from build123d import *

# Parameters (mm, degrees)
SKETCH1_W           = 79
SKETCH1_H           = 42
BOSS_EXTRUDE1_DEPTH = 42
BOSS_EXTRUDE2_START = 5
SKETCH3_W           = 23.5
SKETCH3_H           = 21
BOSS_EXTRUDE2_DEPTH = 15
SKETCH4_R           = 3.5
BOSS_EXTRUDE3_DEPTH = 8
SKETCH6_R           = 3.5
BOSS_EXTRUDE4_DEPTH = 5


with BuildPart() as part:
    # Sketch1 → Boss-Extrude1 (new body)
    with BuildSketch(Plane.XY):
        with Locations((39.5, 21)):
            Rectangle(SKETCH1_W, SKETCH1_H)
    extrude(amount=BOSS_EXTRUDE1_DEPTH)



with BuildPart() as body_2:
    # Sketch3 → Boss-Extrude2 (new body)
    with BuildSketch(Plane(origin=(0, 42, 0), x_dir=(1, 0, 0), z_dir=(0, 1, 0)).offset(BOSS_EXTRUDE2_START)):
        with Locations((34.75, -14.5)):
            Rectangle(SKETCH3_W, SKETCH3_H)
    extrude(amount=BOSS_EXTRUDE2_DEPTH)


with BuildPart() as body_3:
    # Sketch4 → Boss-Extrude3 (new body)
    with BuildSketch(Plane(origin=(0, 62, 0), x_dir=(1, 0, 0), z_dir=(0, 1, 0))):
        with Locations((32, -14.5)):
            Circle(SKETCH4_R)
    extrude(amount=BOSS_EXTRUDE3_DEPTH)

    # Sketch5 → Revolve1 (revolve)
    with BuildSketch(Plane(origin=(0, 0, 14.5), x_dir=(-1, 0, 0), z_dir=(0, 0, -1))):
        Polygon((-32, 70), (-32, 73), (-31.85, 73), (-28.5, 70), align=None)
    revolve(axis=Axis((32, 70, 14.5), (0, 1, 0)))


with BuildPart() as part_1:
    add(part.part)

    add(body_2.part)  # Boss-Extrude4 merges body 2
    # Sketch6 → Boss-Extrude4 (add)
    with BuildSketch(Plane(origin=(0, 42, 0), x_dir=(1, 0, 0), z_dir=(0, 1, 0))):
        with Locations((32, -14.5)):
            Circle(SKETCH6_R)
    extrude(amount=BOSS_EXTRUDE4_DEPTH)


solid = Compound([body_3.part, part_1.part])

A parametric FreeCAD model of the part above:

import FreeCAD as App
import Part
import Sketcher

V = App.Vector
Q = App.Units.Quantity

doc = App.newDocument("Part")
body = doc.addObject("PartDesign::Body", "Body")

# Sketch on XY plane
sketch1 = body.newObject("Sketcher::SketchObject", "Sketch")
sketch1.AttachmentSupport = (doc.getObject("XY_Plane"), [""])
sketch1.MapMode = "FlatFace"
sketch1.addGeometry([
    Part.LineSegment(V(0, 42, 0), V(0, 0, 0)),
    Part.LineSegment(V(0, 0, 0), V(79, 0, 0)),
    Part.LineSegment(V(79, 0, 0), V(79, 42, 0)),
    Part.LineSegment(V(79, 42, 0), V(0, 42, 0)),
], False)
sketch1.addConstraint([
    Sketcher.Constraint("Coincident", 0, 2, 1, 1),
    Sketcher.Constraint("Coincident", 1, 2, 2, 1),
    Sketcher.Constraint("Coincident", 2, 2, 3, 1),
    Sketcher.Constraint("Coincident", 3, 2, 0, 1),
    Sketcher.Constraint("Vertical", 0),
    Sketcher.Constraint("Horizontal", 1),
    Sketcher.Constraint("Vertical", 2),
    Sketcher.Constraint("Horizontal", 3),
    Sketcher.Constraint("Coincident", 0, 2, -1, 1),
    Sketcher.Constraint("DistanceX", 1, 1, 1, 2, Q("79 mm")),
    Sketcher.Constraint("DistanceY", 0, 2, 0, 1, Q("42 mm")),
])
pad1 = body.newObject("PartDesign::Pad", "Pad")
pad1.Profile = sketch1
pad1.Length = 42
body2 = doc.addObject("PartDesign::Body", "Body001")

# Sketch on XZ plane
sketch2 = body2.newObject("Sketcher::SketchObject", "Sketch001")
sketch2.AttachmentSupport = (doc.getObject("XZ_Plane001"), [""])
sketch2.MapMode = "FlatFace"
sketch2.AttachmentOffset = App.Placement(V(0, 0, -47), App.Rotation())
sketch2.addGeometry([
    Part.LineSegment(V(23, 4, 0), V(23, 25, 0)),
    Part.LineSegment(V(23, 25, 0), V(46, 25, 0)),
    Part.LineSegment(V(46, 25, 0), V(46, 4, 0)),
    Part.LineSegment(V(46, 4, 0), V(23, 4, 0)),
], False)
sketch2.addConstraint([
    Sketcher.Constraint("Coincident", 0, 2, 1, 1),
    Sketcher.Constraint("Coincident", 1, 2, 2, 1),
    Sketcher.Constraint("Coincident", 2, 2, 3, 1),
    Sketcher.Constraint("Coincident", 3, 2, 0, 1),
    Sketcher.Constraint("Vertical", 0),
    Sketcher.Constraint("Horizontal", 1),
    Sketcher.Constraint("Vertical", 2),
    Sketcher.Constraint("Horizontal", 3),
    Sketcher.Constraint("DistanceY", 0, 1, 0, 2, Q("21 mm")),
    Sketcher.Constraint("DistanceX", 1, 1, 1, 2, Q("23.5 mm")),
    Sketcher.Constraint("DistanceX", -1, 1, 0, 2, Q("23 mm")),
    Sketcher.Constraint("DistanceY", -1, 1, 0, 2, Q("25 mm")),
])
pad2 = body2.newObject("PartDesign::Pad", "Pad001")
pad2.Profile = sketch2
pad2.Length = 15
pad2.Reversed = True
body3 = doc.addObject("PartDesign::Body", "Body002")

# Sketch on XZ plane
sketch3 = body3.newObject("Sketcher::SketchObject", "Sketch002")
sketch3.AttachmentSupport = (doc.getObject("XZ_Plane002"), [""])
sketch3.MapMode = "FlatFace"
sketch3.AttachmentOffset = App.Placement(V(0, 0, -62), App.Rotation())
sketch3.addGeometry(Part.Circle(V(32, 14.5, 0), V(0, 0, 1), 3.5), False)
sketch3.addConstraint([
    Sketcher.Constraint("Diameter", 0, Q("7 mm")),
    Sketcher.Constraint("DistanceX", -1, 1, 0, 3, Q("32 mm")),
    Sketcher.Constraint("DistanceY", -1, 1, 0, 3, Q("14.5 mm")),
])
pad3 = body3.newObject("PartDesign::Pad", "Pad002")
pad3.Profile = sketch3
pad3.Length = 8
pad3.Reversed = True

# Sketch on XY plane
sketch4 = body3.newObject("Sketcher::SketchObject", "Sketch003")
sketch4.AttachmentSupport = (doc.getObject("XY_Plane002"), [""])
sketch4.MapMode = "FlatFace"
sketch4.AttachmentOffset = App.Placement(V(0, 0, 14.5), App.Rotation())
sketch4.addGeometry([
    Part.LineSegment(V(32, 73, 0), V(32, 70, 0)),
    Part.LineSegment(V(32, 70, 0), V(28.5, 70, 0)),
    Part.LineSegment(V(28.5, 70, 0), V(31.85, 73, 0)),
    Part.LineSegment(V(31.85, 73, 0), V(32, 73, 0)),
], False)
sketch4.addGeometry(Part.LineSegment(V(32, 70, 0), V(32, 73, 0)), True)  # axis
sketch4.addConstraint([
    Sketcher.Constraint("Coincident", 0, 2, 1, 1),
    Sketcher.Constraint("Coincident", 1, 2, 2, 1),
    Sketcher.Constraint("Coincident", 2, 2, 3, 1),
    Sketcher.Constraint("Coincident", 3, 2, 0, 1),
    Sketcher.Constraint("Vertical", 0),
    Sketcher.Constraint("Horizontal", 1),
    Sketcher.Constraint("Horizontal", 3),
    Sketcher.Constraint("Vertical", 4),
    Sketcher.Constraint("Coincident", 4, 1, 0, 2),
    Sketcher.Constraint("Horizontal", 2, 2, 4, 2),
    Sketcher.Constraint("DistanceY", 0, 2, 0, 1, Q("3 mm")),
    Sketcher.Constraint("DistanceX", 1, 2, 1, 1, Q("3.5 mm")),
    Sketcher.Constraint("DistanceX", -1, 1, 0, 2, Q("32 mm")),
    Sketcher.Constraint("DistanceY", -1, 1, 0, 2, Q("70 mm")),
    Sketcher.Constraint("DistanceX", 3, 1, 3, 2, Q("0.15 mm")),
])
revolution = body3.newObject("PartDesign::Revolution", "Revolution")
revolution.Profile = sketch4
revolution.ReferenceAxis = (sketch4, ["Axis0"])
revolution.Angle = 360
body.AllowCompound = True
doc.recompute()

boolean = body.newObject("PartDesign::Boolean", "Boolean")
boolean.Type = "Fuse"
boolean.addObjects([body2])

# Sketch on XZ plane
sketch5 = body.newObject("Sketcher::SketchObject", "Sketch004")
sketch5.AttachmentSupport = (doc.getObject("XZ_Plane"), [""])
sketch5.MapMode = "FlatFace"
sketch5.AttachmentOffset = App.Placement(V(0, 0, -42), App.Rotation())
sketch5.addGeometry(Part.Circle(V(32, 14.5, 0), V(0, 0, 1), 3.5), False)
sketch5.addConstraint([
    Sketcher.Constraint("Diameter", 0, Q("7 mm")),
    Sketcher.Constraint("DistanceX", -1, 1, 0, 3, Q("32 mm")),
    Sketcher.Constraint("DistanceY", -1, 1, 0, 3, Q("14.5 mm")),
])
pad4 = body.newObject("PartDesign::Pad", "Pad003")
pad4.Profile = sketch5
pad4.Length = 5
pad4.Reversed = True

doc.recompute()
